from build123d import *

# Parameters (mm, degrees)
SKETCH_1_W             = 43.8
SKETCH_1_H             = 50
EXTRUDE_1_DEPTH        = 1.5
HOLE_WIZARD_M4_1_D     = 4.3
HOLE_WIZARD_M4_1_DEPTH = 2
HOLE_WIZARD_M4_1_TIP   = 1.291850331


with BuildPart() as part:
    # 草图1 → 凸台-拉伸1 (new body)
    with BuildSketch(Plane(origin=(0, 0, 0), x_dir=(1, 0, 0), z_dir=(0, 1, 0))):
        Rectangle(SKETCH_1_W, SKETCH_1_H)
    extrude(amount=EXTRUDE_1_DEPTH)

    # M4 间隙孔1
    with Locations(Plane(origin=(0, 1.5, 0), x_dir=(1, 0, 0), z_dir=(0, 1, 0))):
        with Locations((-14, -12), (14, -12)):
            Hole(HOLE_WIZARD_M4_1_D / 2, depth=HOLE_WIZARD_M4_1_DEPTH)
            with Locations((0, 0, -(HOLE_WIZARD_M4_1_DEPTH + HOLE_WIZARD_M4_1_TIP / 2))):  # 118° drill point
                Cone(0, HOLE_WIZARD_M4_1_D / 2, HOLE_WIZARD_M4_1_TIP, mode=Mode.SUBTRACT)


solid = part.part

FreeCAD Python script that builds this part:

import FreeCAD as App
import Part
import Sketcher

V = App.Vector


def add_polygon(sketch, points):
    """Adds a closed chain of lines whose ends are joined by coincident constraints."""
    first, n = sketch.GeometryCount, len(points)
    for a, b in zip(points, points[1:] + points[:1]):
        sketch.addGeometry(Part.LineSegment(App.Vector(*a, 0), App.Vector(*b, 0)), False)
    for i in range(n):
        sketch.addConstraint(Sketcher.Constraint("Coincident", first + i, 2, first + (i + 1) % n, 1))

doc = App.newDocument("Part")
body = doc.addObject("PartDesign::Body", "Body")

sketch1 = doc.addObject("Sketcher::SketchObject", "Sketch")
body.addObject(sketch1)
sketch1.AttachmentSupport = (doc.XZ_Plane, [""])
sketch1.MapMode = "FlatFace"
add_polygon(sketch1, [(-22, -25), (-22, 25), (22, 25), (22, -25)])
sketch1.addConstraint([
    Sketcher.Constraint("Vertical", 0),
    Sketcher.Constraint("Horizontal", 1),
    Sketcher.Constraint("Vertical", 2),
    Sketcher.Constraint("Horizontal", 3),
    Sketcher.Constraint("Symmetric", 0, 2, 2, 2, -1, 1),
    Sketcher.Constraint("DistanceY", 0, 1, 0, 2, 50.0),
    Sketcher.Constraint("DistanceX", 1, 1, 1, 2, 43.8),
])
pad1 = doc.addObject("PartDesign::Pad", "Pad")
body.addObject(pad1)
pad1.Profile = sketch1
pad1.Length = 1.5
pad1.Reversed = True

sketch2 = doc.addObject("Sketcher::SketchObject", "Sketch001")
body.addObject(sketch2)
sketch2.AttachmentSupport = (doc.XZ_Plane, [""])
sketch2.MapMode = "FlatFace"
sketch2.AttachmentOffset = App.Placement(V(0, 0, -1.5), App.Rotation())
sketch2.addGeometry([
    Part.Circle(V(-14, 12, 0), V(0, 0, 1), 2.1),
    Part.Circle(V(14, 12, 0), V(0, 0, 1), 2.1),
], False)
sketch2.addConstraint([
    Sketcher.Constraint("Equal", 0, 1),
    Sketcher.Constraint("Symmetric", 0, 3, 1, 3, -2),
    Sketcher.Constraint("Diameter", 0, 4.3),
    Sketcher.Constraint("DistanceX", 0, 3, -1, 1, 14.0),
    Sketcher.Constraint("DistanceY", -1, 1, 0, 3, 12.0),
])
doc.recompute()
hole = doc.addObject("PartDesign::Hole", "Hole")
body.addObject(hole)
hole.Profile = sketch2
hole.ThreadType = "None"
hole.Diameter = 4.3
hole.DepthType = "Dimension"
hole.Depth = 2
hole.DrillPoint = "Angled"
hole.DrillPointAngle = 118
hole.Reversed = True

doc.recompute()
